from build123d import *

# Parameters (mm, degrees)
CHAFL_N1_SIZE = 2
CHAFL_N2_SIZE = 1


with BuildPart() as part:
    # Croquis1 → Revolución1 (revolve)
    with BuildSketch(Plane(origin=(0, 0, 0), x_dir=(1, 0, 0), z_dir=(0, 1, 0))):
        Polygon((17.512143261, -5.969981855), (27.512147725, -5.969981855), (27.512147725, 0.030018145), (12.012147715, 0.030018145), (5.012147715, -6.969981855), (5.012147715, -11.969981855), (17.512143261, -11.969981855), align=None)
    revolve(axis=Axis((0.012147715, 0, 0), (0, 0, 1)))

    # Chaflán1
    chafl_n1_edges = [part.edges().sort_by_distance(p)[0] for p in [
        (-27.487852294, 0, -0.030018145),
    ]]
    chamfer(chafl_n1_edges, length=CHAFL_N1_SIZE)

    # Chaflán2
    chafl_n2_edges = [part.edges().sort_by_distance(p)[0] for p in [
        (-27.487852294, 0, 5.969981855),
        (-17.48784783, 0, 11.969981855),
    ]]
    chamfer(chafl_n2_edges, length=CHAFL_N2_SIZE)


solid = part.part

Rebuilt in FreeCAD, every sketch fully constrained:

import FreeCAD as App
import Part
import Sketcher

V = App.Vector
Q = App.Units.Quantity


def edges_at(feature, points):
    """Names of the edges that pass closest to the given points."""
    edges = feature.Shape.Edges
    near = lambda p: min(range(len(edges)), key=lambda i: edges[i].distToShape(Part.Vertex(*p))[0])
    return sorted({f"Edge{near(p) + 1}" for p in points})

doc = App.newDocument("Part")
body = doc.addObject("PartDesign::Body", "Body")

# Sketch on XZ plane
sketch1 = body.newObject("Sketcher::SketchObject", "Sketch")
sketch1.AttachmentSupport = (doc.getObject("XZ_Plane"), [""])
sketch1.MapMode = "FlatFace"
sketch1.addGeometry(Part.LineSegment(V(18, 6, 0), V(28, 6, 0)), False)
sketch1.addGeometry(Part.LineSegment(V(28, 6, 0), V(28, 0, 0)), False)
sketch1.addGeometry(Part.LineSegment(V(28, 0, 0), V(12, 0, 0)), False)
sketch1.addGeometry(Part.LineSegment(V(12, 0, 0), V(5, 7, 0)), False)
sketch1.addGeometry(Part.LineSegment(V(5, 7, 0), V(5, 12, 0)), False)
sketch1.addGeometry(Part.LineSegment(V(5, 12, 0), V(18, 12, 0)), False)
sketch1.addGeometry(Part.LineSegment(V(18, 12, 0), V(18, 6, 0)), False)
sketch1.addGeometry(Part.LineSegment(V(0, 0, 0), V(0, 12, 0)), True)  # axis
sketch1.addConstraint(Sketcher.Constraint("Coincident", 0, 2, 1, 1))
sketch1.addConstraint(Sketcher.Constraint("Coincident", 1, 2, 2, 1))
sketch1.addConstraint(Sketcher.Constraint("Coincident", 2, 2, 3, 1))
sketch1.addConstraint(Sketcher.Constraint("Coincident", 3, 2, 4, 1))
sketch1.addConstraint(Sketcher.Constraint("Coincident", 4, 2, 5, 1))
sketch1.addConstraint(Sketcher.Constraint("Coincident", 5, 2, 6, 1))
sketch1.addConstraint(Sketcher.Constraint("Coincident", 6, 2, 0, 1))
sketch1.addConstraint(Sketcher.Constraint("Horizontal", 0))
sketch1.addConstraint(Sketcher.Constraint("Vertical", 1))
sketch1.addConstraint(Sketcher.Constraint("Horizontal", 2))
sketch1.addConstraint(Sketcher.Constraint("Vertical", 4))
sketch1.addConstraint(Sketcher.Constraint("Horizontal", 5))
sketch1.addConstraint(Sketcher.Constraint("Vertical", 6))
sketch1.addConstraint(Sketcher.Constraint("Vertical", 7))
sketch1.addConstraint(Sketcher.Constraint("Horizontal", 2, 2, 7, 1))
sketch1.addConstraint(Sketcher.Constraint("Horizontal", 5, 2, 7, 2))
sketch1.addConstraint(Sketcher.Constraint("Equal", 1, 6))
sketch1.addConstraint(Sketcher.Constraint("DistanceY", 1, 2, 1, 1, Q("6 mm")))
sketch1.addConstraint(Sketcher.Constraint("DistanceY", 4, 1, 4, 2, Q("5 mm")))
sketch1.addConstraint(Sketcher.Constraint("Angle", 3, Q("135 deg")))
sketch1.addConstraint(Sketcher.Constraint("DistanceX", 2, 2, 2, 1, Q("15.5 mm")))
sketch1.addConstraint(Sketcher.Constraint("DistanceX", 7, 1, 3, 2, Q("5 mm")))
sketch1.addConstraint(Sketcher.Constraint("DistanceX", 0, 1, 0, 2, Q("10.000004 mm")))
sketch1.addConstraint(Sketcher.Constraint("DistanceY", -1, 1, 0, 2, Q("5.969982 mm")))
sketch1.addConstraint(Sketcher.Constraint("DistanceX", -1, 1, 0, 2, Q("27.512148 mm")))
revolution = body.newObject("PartDesign::Revolution", "Revolution")
revolution.Profile = sketch1
revolution.ReferenceAxis = (sketch1, ["Axis0"])
revolution.Angle = 360
doc.recompute()

chamfer = body.newObject("PartDesign::Chamfer", "Chamfer")
chamfer.Base = (revolution, edges_at(revolution, [(-27.488, 0, -0.03)]))
chamfer.Size = 2
doc.recompute()

chamfer2 = body.newObject("PartDesign::Chamfer", "Chamfer001")
chamfer2.Base = (chamfer, edges_at(chamfer, [(-27.488, 0, 5.97), (-17.488, 0, 11.97)]))
chamfer2.Size = 1

doc.recompute()
